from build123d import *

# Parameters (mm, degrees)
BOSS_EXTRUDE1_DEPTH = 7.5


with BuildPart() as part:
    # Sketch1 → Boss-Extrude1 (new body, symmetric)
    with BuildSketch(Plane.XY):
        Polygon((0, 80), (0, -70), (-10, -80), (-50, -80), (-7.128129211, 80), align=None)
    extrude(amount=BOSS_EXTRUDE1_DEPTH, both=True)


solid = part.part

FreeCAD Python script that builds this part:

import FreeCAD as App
import Part
import Sketcher
from FreeCAD import Vector
Q = App.Units.Quantity

doc = App.newDocument("Part")
body = doc.addObject("PartDesign::Body", "Body")

# Sketch on XY plane
sketch1 = body.newObject("Sketcher::SketchObject", "Sketch")
sketch1.AttachmentSupport = (doc.getObject("XY_Plane"), [""])
sketch1.MapMode = "FlatFace"
sketch1.addGeometry([
    Part.LineSegment(Vector(0, -70, 0), Vector(0, 80, 0)),  # 0
    Part.LineSegment(Vector(0, 80, 0), Vector(-7, 80, 0)),  # 1
    Part.LineSegment(Vector(-7, 80, 0), Vector(-50, -80, 0)),  # 2
    Part.LineSegment(Vector(-50, -80, 0), Vector(-10, -80, 0)),  # 3
    Part.LineSegment(Vector(-10, -80, 0), Vector(0, -70, 0)),  # 4
], False)
sketch1.addConstraint([
    Sketcher.Constraint("Coincident", 0, 2, 1, 1),
    Sketcher.Constraint("Coincident", 1, 2, 2, 1),
    Sketcher.Constraint("Coincident", 2, 2, 3, 1),
    Sketcher.Constraint("Coincident", 3, 2, 4, 1),
    Sketcher.Constraint("Coincident", 4, 2, 0, 1),
    Sketcher.Constraint("Vertical", 0),
    Sketcher.Constraint("Horizontal", 1),
    Sketcher.Constraint("Horizontal", 3),
    Sketcher.Constraint("PointOnObject", 0, 2, -2),
    Sketcher.Constraint("DistanceX", 3, 1, 3, 2, Q("40 mm")),
    Sketcher.Constraint("DistanceY", 0, 1, 0, 2, Q("150 mm")),
    Sketcher.Constraint("Angle", 2, Q("-105 deg")),
    Sketcher.Constraint("Angle", 4, Q("45 deg")),
    Sketcher.Constraint("DistanceY", -1, 1, 0, 2, Q("80 mm")),
    Sketcher.Constraint("DistanceX", 2, 2, -1, 1, Q("50 mm")),
])
pad1 = body.newObject("PartDesign::Pad", "Pad")
pad1.Profile = sketch1
pad1.Length = 15
pad1.Midplane = True

doc.recompute()
